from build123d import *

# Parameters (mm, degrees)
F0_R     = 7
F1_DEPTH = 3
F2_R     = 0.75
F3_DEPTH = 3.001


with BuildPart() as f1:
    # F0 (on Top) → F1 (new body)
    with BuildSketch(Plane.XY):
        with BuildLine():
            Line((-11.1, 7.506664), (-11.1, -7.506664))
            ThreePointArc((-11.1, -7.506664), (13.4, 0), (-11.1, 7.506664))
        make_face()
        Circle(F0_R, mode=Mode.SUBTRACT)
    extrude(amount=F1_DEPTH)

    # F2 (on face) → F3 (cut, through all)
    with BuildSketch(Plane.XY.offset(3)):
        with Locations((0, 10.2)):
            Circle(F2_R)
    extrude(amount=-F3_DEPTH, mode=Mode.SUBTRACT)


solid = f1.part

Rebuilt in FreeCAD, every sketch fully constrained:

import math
import FreeCAD as App
import Part
import Sketcher

V = App.Vector

doc = App.newDocument("Part")
body = doc.addObject("PartDesign::Body", "Body")

sketch1 = body.newObject("Sketcher::SketchObject", "Sketch")
sketch1.AttachmentSupport = (doc.getObject("XY_Plane"), [""])
sketch1.MapMode = "FlatFace"
sketch1.addGeometry([
    Part.LineSegment(V(-11.1, 7.506664, 0), V(-11.1, -7.506664, 0)),
    Part.ArcOfCircle(Part.Circle(V(0, 0, 0), V(0, 0, 1), 13.4), math.radians(-145.930453), math.radians(145.930453)),
    Part.Circle(V(0, 0, 0), V(0, 0, 1), 7),
], False)
sketch1.addConstraint([
    Sketcher.Constraint("Coincident", 0, 1, 1, 2),
    Sketcher.Constraint("Coincident", 1, 1, 0, 2),
    Sketcher.Constraint("Vertical", 0),
    Sketcher.Constraint("Coincident", 1, 3, -1, 1),
    Sketcher.Constraint("Coincident", 2, 3, -1, 1),
    Sketcher.Constraint("Diameter", 2, 14.0),
    Sketcher.Constraint("Radius", 1, 13.4),
    Sketcher.Constraint("DistanceX", 0, 1, -1, 1, 11.1),
])
pad1 = body.newObject("PartDesign::Pad", "Pad")
pad1.Profile = sketch1
pad1.Length = 3

sketch2 = body.newObject("Sketcher::SketchObject", "Sketch001")
sketch2.AttachmentSupport = (doc.getObject("XY_Plane"), [""])
sketch2.MapMode = "FlatFace"
sketch2.AttachmentOffset = App.Placement(V(0, 0, 3), App.Rotation())
sketch2.addGeometry(Part.Circle(V(0, 10.2, 0), V(0, 0, 1), 0.75), False)
sketch2.addConstraint([
    Sketcher.Constraint("PointOnObject", 0, 3, -2),
    Sketcher.Constraint("Diameter", 0, 1.5),
    Sketcher.Constraint("DistanceY", -1, 1, 0, 3, 10.2),
])
pocket1 = body.newObject("PartDesign::Pocket", "Pocket")
pocket1.Profile = sketch2
pocket1.Type = "ThroughAll"

doc.recompute()
